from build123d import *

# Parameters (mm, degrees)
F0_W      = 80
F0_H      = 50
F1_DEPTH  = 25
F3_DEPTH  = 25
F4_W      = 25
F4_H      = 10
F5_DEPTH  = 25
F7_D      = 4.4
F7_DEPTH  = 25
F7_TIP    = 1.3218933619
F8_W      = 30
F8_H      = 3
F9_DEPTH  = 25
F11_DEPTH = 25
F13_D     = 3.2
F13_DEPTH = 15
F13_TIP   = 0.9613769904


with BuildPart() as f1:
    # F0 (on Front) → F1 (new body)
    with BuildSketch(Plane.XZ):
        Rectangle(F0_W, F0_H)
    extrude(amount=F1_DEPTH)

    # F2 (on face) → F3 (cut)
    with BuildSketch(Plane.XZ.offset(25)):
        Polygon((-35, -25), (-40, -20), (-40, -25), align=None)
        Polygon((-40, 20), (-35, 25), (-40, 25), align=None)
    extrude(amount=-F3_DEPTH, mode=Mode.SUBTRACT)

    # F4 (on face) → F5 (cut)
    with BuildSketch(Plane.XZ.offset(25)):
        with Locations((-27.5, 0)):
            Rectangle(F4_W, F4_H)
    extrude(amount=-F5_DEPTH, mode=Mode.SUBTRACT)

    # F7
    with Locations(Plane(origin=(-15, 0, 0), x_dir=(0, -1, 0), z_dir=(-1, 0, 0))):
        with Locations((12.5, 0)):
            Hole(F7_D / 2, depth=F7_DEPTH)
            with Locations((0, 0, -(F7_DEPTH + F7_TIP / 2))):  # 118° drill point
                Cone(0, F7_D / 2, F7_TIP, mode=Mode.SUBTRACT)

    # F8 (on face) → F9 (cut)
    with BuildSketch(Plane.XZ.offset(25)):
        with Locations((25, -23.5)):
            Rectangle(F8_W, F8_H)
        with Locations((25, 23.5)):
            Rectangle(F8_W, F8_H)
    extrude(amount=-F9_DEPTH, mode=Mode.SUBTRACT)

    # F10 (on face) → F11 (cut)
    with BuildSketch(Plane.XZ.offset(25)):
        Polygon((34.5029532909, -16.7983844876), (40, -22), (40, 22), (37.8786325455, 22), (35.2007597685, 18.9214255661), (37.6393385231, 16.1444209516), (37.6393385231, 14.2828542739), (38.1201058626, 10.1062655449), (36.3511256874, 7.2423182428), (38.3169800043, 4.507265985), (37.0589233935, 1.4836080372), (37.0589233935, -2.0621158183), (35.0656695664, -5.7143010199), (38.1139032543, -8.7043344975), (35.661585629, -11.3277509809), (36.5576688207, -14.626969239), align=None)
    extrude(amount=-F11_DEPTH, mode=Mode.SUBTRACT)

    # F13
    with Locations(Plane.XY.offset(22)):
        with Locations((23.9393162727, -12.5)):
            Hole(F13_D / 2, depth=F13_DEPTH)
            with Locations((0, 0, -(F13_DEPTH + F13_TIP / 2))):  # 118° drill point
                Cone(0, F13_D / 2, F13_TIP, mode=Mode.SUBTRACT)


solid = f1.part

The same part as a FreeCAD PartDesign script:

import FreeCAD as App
import Part
import Sketcher


def add_polygon(sketch, points):
    """Adds a closed chain of lines whose ends are joined by coincident constraints."""
    first, n = sketch.GeometryCount, len(points)
    for a, b in zip(points, points[1:] + points[:1]):
        sketch.addGeometry(Part.LineSegment(App.Vector(*a, 0), App.Vector(*b, 0)), False)
    for i in range(n):
        sketch.addConstraint(Sketcher.Constraint("Coincident", first + i, 2, first + (i + 1) % n, 1))

doc = App.newDocument("Part")
params = doc.addObject("Spreadsheet::Sheet", "Params")
for row, (alias, value) in enumerate([
    ("sketch1_width", "80 mm"),
    ("sketch1_height", "50 mm"),
    ("pad1_length", "25 mm"),
    ("sketch2_width", "5 mm"),
    ("pocket1_length", "25 mm"),
    ("sketch3_width", "25 mm"),
    ("sketch3_height", "10 mm"),
    ("pocket2_length", "25 mm"),
    ("sketch4_diameter", "4.4 mm"),
    ("hole_diameter", "4.4 mm"),
    ("hole_depth", "25 mm"),
    ("sketch5_width", "30 mm"),
    ("sketch5_height", "3 mm"),
    ("pocket3_length", "25 mm"),
    ("sketch6_height", "44 mm"),
    ("pocket4_length", "25 mm"),
    ("sketch7_diameter", "3.2 mm"),
    ("hole2_diameter", "3.2 mm"),
    ("hole2_depth", "15 mm"),
], start=1):
    params.set(f"A{row}", alias)
    params.set(f"B{row}", "=" + value)
    params.setAlias(f"B{row}", alias)

body = doc.addObject("PartDesign::Body", "Body")

# Sketch on XZ plane
sketch1 = body.newObject("Sketcher::SketchObject", "Sketch")
sketch1.AttachmentSupport = (doc.getObject("XZ_Plane"), [""])
sketch1.MapMode = "FlatFace"
add_polygon(sketch1, [(-40, 25), (-40, -25), (40, -25), (40, 25)])  # lines 0-3
sketch1.addConstraint(Sketcher.Constraint("Vertical", 0))
sketch1.addConstraint(Sketcher.Constraint("Horizontal", 1))
sketch1.addConstraint(Sketcher.Constraint("Vertical", 2))
sketch1.addConstraint(Sketcher.Constraint("Horizontal", 3))
sketch1.addConstraint(Sketcher.Constraint("Symmetric", 0, 2, 2, 2, -1, 1))
sketch1.addConstraint(Sketcher.Constraint("DistanceX", 1, 1, 1, 2, 80.0))
sketch1.addConstraint(Sketcher.Constraint("DistanceY", 0, 2, 0, 1, 50.0))
sketch1.setExpression("Constraints[9]", "Params.sketch1_width")
sketch1.setExpression("Constraints[10]", "Params.sketch1_height")
pad1 = body.newObject("PartDesign::Pad", "Pad")
pad1.Profile = sketch1
pad1.setExpression("Length", "Params.pad1_length")

# Sketch on XZ plane
sketch2 = body.newObject("Sketcher::SketchObject", "Sketch001")
sketch2.AttachmentSupport = (doc.getObject("XZ_Plane"), [""])
sketch2.MapMode = "FlatFace"
sketch2.AttachmentOffset = App.Placement(App.Vector(0, 0, 25), App.Rotation())
add_polygon(sketch2, [(-35, -25), (-40, -20), (-40, -25)])  # lines 0-2
add_polygon(sketch2, [(-40, 20), (-35, 25), (-40, 25)])  # lines 3-5
sketch2.addConstraint(Sketcher.Constraint("Vertical", 1))
sketch2.addConstraint(Sketcher.Constraint("Horizontal", 2))
sketch2.addConstraint(Sketcher.Constraint("Horizontal", 4))
sketch2.addConstraint(Sketcher.Constraint("Vertical", 5))
sketch2.addConstraint(Sketcher.Constraint("Symmetric", 2, 2, 3, 2, -1))
sketch2.addConstraint(Sketcher.Constraint("Symmetric", 0, 2, 5, 2, -1))
sketch2.addConstraint(Sketcher.Constraint("Perpendicular", 0, 3))
sketch2.addConstraint(Sketcher.Constraint("DistanceX", 2, 1, 2, 2, 5.0))
sketch2.addConstraint(Sketcher.Constraint("DistanceX", 0, 2, -1, 1, 40.0))
sketch2.addConstraint(Sketcher.Constraint("DistanceY", 0, 2, -1, 1, 20.0))
sketch2.setExpression("Constraints[13]", "Params.sketch2_width")
pocket1 = body.newObject("PartDesign::Pocket", "Pocket")
pocket1.Profile = sketch2
pocket1.setExpression("Length", "Params.pocket1_length")

# Sketch on XZ plane
sketch3 = body.newObject("Sketcher::SketchObject", "Sketch002")
sketch3.AttachmentSupport = (doc.getObject("XZ_Plane"), [""])
sketch3.MapMode = "FlatFace"
sketch3.AttachmentOffset = App.Placement(App.Vector(0, 0, 25), App.Rotation())
add_polygon(sketch3, [(-40, 5), (-40, -5), (-15, -5), (-15, 5)])  # lines 0-3
sketch3.addConstraint(Sketcher.Constraint("Vertical", 0))
sketch3.addConstraint(Sketcher.Constraint("Horizontal", 1))
sketch3.addConstraint(Sketcher.Constraint("Vertical", 2))
sketch3.addConstraint(Sketcher.Constraint("Horizontal", 3))
sketch3.addConstraint(Sketcher.Constraint("DistanceX", 1, 1, 1, 2, 25.0))
sketch3.addConstraint(Sketcher.Constraint("DistanceY", 0, 2, 0, 1, 10.0))
sketch3.addConstraint(Sketcher.Constraint("DistanceX", 0, 2, -1, 1, 40.0))
sketch3.addConstraint(Sketcher.Constraint("DistanceY", 0, 2, -1, 1, 5.0))
sketch3.setExpression("Constraints[8]", "Params.sketch3_width")
sketch3.setExpression("Constraints[9]", "Params.sketch3_height")
pocket2 = body.newObject("PartDesign::Pocket", "Pocket001")
pocket2.Profile = sketch3
pocket2.setExpression("Length", "Params.pocket2_length")

# Sketch on YZ plane
sketch4 = body.newObject("Sketcher::SketchObject", "Sketch003")
sketch4.AttachmentSupport = (doc.getObject("YZ_Plane"), [""])
sketch4.MapMode = "FlatFace"
sketch4.AttachmentOffset = App.Placement(App.Vector(0, 0, -15), App.Rotation())
sketch4.addGeometry(Part.Circle(App.Vector(-12.5, 0, 0), App.Vector(0, 0, 1), 2.2), False)
sketch4.addConstraint(Sketcher.Constraint("PointOnObject", 0, 3, -1))
sketch4.addConstraint(Sketcher.Constraint("Diameter", 0, 4.4))
sketch4.addConstraint(Sketcher.Constraint("DistanceX", 0, 3, -1, 1, 12.5))
sketch4.setExpression("Constraints[1]", "Params.sketch4_diameter")
doc.recompute()
hole = body.newObject("PartDesign::Hole", "Hole")
hole.Profile = sketch4
hole.ThreadType = "None"
hole.setExpression("Diameter", "Params.hole_diameter")
hole.DepthType = "Dimension"
hole.setExpression("Depth", "Params.hole_depth")
hole.DrillPoint = "Angled"
hole.DrillPointAngle = 118
hole.Reversed = True

# Sketch on XZ plane
sketch5 = body.newObject("Sketcher::SketchObject", "Sketch004")
sketch5.AttachmentSupport = (doc.getObject("XZ_Plane"), [""])
sketch5.MapMode = "FlatFace"
sketch5.AttachmentOffset = App.Placement(App.Vector(0, 0, 25), App.Rotation())
add_polygon(sketch5, [(10, -22), (10, -25), (40, -25), (40, -22)])  # lines 0-3
add_polygon(sketch5, [(10, 25), (10, 22), (40, 22), (40, 25)])  # lines 4-7
sketch5.addConstraint(Sketcher.Constraint("Vertical", 0))
sketch5.addConstraint(Sketcher.Constraint("Horizontal", 1))
sketch5.addConstraint(Sketcher.Constraint("Vertical", 2))
sketch5.addConstraint(Sketcher.Constraint("Horizontal", 3))
sketch5.addConstraint(Sketcher.Constraint("Vertical", 4))
sketch5.addConstraint(Sketcher.Constraint("Horizontal", 5))
sketch5.addConstraint(Sketcher.Constraint("Vertical", 6))
sketch5.addConstraint(Sketcher.Constraint("Horizontal", 7))
sketch5.addConstraint(Sketcher.Constraint("Symmetric", 3, 2, 4, 2, -1))
sketch5.addConstraint(Sketcher.Constraint("Symmetric", 1, 2, 6, 2, -1))
sketch5.addConstraint(Sketcher.Constraint("DistanceX", 1, 1, 1, 2, 30.0))
sketch5.addConstraint(Sketcher.Constraint("DistanceY", 0, 2, 0, 1, 3.0))
sketch5.addConstraint(Sketcher.Constraint("DistanceX", -1, 1, 0, 2, 10.0))
sketch5.addConstraint(Sketcher.Constraint("DistanceY", 0, 2, -1, 1, 25.0))
sketch5.setExpression("Constraints[18]", "Params.sketch5_width")
sketch5.setExpression("Constraints[19]", "Params.sketch5_height")
pocket3 = body.newObject("PartDesign::Pocket", "Pocket002")
pocket3.Profile = sketch5
pocket3.setExpression("Length", "Params.pocket3_length")

# Sketch on XZ plane
sketch6 = body.newObject("Sketcher::SketchObject", "Sketch005")
sketch6.AttachmentSupport = (doc.getObject("XZ_Plane"), [""])
sketch6.MapMode = "FlatFace"
sketch6.AttachmentOffset = App.Placement(App.Vector(0, 0, 25), App.Rotation())
add_polygon(sketch6, [(34.5, -16.8), (40, -22), (40, 22), (37.9, 22), (35.2, 18.9), (37.6, 16.1), (37.6, 14.3), (38.1, 10.1), (36.4, 7.2), (38.3, 4.5), (37.1, 1.5), (37.1, -2.1), (35.1, -5.7), (38.1, -8.7), (35.7, -11.3), (36.6, -14.6)])  # lines 0-15
sketch6.addConstraint(Sketcher.Constraint("Vertical", 1))
sketch6.addConstraint(Sketcher.Constraint("Horizontal", 2))
sketch6.addConstraint(Sketcher.Constraint("Vertical", 5))
sketch6.addConstraint(Sketcher.Constraint("Vertical", 10))
sketch6.addConstraint(Sketcher.Constraint("Perpendicular", 0, 15))
sketch6.addConstraint(Sketcher.Constraint("DistanceY", 1, 1, 1, 2, 44.0))
sketch6.addConstraint(Sketcher.Constraint("DistanceX", -1, 1, 0, 2, 40.0))
sketch6.addConstraint(Sketcher.Constraint("DistanceY", 0, 2, -1, 1, 22.0))
sketch6.addConstraint(Sketcher.Constraint("DistanceY", 8, 2, 6, 2, 5.599))
sketch6.addConstraint(Sketcher.Constraint("DistanceX", 11, 2, 14, 2, 1.491999))
sketch6.addConstraint(Sketcher.Constraint("DistanceY", 11, 2, -1, 1, 5.714301))
sketch6.addConstraint(Sketcher.Constraint("DistanceY", 12, 2, 8, 2, 13.2116))
sketch6.addConstraint(Sketcher.Constraint("Distance", 0, 7.56798))
sketch6.addConstraint(Sketcher.Constraint("Distance", 4, 3.69573))
sketch6.addConstraint(Sketcher.Constraint("Distance", 6, 4.204168))
sketch6.addConstraint(Sketcher.Constraint("Distance", 11, 4.160711))
sketch6.addConstraint(Sketcher.Constraint("DistanceX", 2, 2, 2, 1, 2.121367))
sketch6.addConstraint(Sketcher.Constraint("DistanceY", 5, 2, 5, 1, 1.861567))
sketch6.addConstraint(Sketcher.Constraint("DistanceY", 10, 2, 10, 1, 3.545724))
sketch6.addConstraint(Sketcher.Constraint("DistanceX", -1, 1, 3, 2, 35.20076))
sketch6.addConstraint(Sketcher.Constraint("DistanceX", -1, 1, 4, 2, 37.639339))
sketch6.addConstraint(Sketcher.Constraint("DistanceY", -1, 1, 4, 2, 16.144421))
sketch6.addConstraint(Sketcher.Constraint("DistanceY", -1, 1, 7, 2, 7.242318))
sketch6.addConstraint(Sketcher.Constraint("DistanceX", -1, 1, 8, 2, 38.31698))
sketch6.addConstraint(Sketcher.Constraint("DistanceY", -1, 1, 9, 2, 1.483608))
sketch6.addConstraint(Sketcher.Constraint("DistanceX", -1, 1, 11, 2, 35.06567))
sketch6.addConstraint(Sketcher.Constraint("DistanceY", 13, 2, -1, 1, 11.327751))
sketch6.addConstraint(Sketcher.Constraint("DistanceY", 14, 2, -1, 1, 14.626969))
sketch6.addConstraint(Sketcher.Constraint("DistanceY", 6, 2, 5, 2, 4.176589))
sketch6.addConstraint(Sketcher.Constraint("DistanceX", 7, 2, 6, 2, 1.76898))
sketch6.addConstraint(Sketcher.Constraint("DistanceX", 10, 2, 12, 2, 1.05498))
sketch6.addConstraint(Sketcher.Constraint("Distance", 13, 3.591125))
sketch6.setExpression("Constraints[21]", "Params.sketch6_height")
pocket4 = body.newObject("PartDesign::Pocket", "Pocket003")
pocket4.Profile = sketch6
pocket4.setExpression("Length", "Params.pocket4_length")

# Sketch on XY plane
sketch7 = body.newObject("Sketcher::SketchObject", "Sketch006")
sketch7.AttachmentSupport = (doc.getObject("XY_Plane"), [""])
sketch7.MapMode = "FlatFace"
sketch7.AttachmentOffset = App.Placement(App.Vector(0, 0, 22), App.Rotation())
sketch7.addGeometry(Part.Circle(App.Vector(23.9, -12.5, 0), App.Vector(0, 0, 1), 1.6), False)
sketch7.addConstraint(Sketcher.Constraint("Diameter", 0, 3.2))
sketch7.addConstraint(Sketcher.Constraint("DistanceY", 0, 3, -1, 1, 12.5))
sketch7.addConstraint(Sketcher.Constraint("DistanceX", -1, 1, 0, 3, 23.939316))
sketch7.setExpression("Constraints[0]", "Params.sketch7_diameter")
doc.recompute()
hole2 = body.newObject("PartDesign::Hole", "Hole001")
hole2.Profile = sketch7
hole2.ThreadType = "None"
hole2.setExpression("Diameter", "Params.hole2_diameter")
hole2.DepthType = "Dimension"
hole2.setExpression("Depth", "Params.hole2_depth")
hole2.DrillPoint = "Angled"
hole2.DrillPointAngle = 118

doc.recompute()
